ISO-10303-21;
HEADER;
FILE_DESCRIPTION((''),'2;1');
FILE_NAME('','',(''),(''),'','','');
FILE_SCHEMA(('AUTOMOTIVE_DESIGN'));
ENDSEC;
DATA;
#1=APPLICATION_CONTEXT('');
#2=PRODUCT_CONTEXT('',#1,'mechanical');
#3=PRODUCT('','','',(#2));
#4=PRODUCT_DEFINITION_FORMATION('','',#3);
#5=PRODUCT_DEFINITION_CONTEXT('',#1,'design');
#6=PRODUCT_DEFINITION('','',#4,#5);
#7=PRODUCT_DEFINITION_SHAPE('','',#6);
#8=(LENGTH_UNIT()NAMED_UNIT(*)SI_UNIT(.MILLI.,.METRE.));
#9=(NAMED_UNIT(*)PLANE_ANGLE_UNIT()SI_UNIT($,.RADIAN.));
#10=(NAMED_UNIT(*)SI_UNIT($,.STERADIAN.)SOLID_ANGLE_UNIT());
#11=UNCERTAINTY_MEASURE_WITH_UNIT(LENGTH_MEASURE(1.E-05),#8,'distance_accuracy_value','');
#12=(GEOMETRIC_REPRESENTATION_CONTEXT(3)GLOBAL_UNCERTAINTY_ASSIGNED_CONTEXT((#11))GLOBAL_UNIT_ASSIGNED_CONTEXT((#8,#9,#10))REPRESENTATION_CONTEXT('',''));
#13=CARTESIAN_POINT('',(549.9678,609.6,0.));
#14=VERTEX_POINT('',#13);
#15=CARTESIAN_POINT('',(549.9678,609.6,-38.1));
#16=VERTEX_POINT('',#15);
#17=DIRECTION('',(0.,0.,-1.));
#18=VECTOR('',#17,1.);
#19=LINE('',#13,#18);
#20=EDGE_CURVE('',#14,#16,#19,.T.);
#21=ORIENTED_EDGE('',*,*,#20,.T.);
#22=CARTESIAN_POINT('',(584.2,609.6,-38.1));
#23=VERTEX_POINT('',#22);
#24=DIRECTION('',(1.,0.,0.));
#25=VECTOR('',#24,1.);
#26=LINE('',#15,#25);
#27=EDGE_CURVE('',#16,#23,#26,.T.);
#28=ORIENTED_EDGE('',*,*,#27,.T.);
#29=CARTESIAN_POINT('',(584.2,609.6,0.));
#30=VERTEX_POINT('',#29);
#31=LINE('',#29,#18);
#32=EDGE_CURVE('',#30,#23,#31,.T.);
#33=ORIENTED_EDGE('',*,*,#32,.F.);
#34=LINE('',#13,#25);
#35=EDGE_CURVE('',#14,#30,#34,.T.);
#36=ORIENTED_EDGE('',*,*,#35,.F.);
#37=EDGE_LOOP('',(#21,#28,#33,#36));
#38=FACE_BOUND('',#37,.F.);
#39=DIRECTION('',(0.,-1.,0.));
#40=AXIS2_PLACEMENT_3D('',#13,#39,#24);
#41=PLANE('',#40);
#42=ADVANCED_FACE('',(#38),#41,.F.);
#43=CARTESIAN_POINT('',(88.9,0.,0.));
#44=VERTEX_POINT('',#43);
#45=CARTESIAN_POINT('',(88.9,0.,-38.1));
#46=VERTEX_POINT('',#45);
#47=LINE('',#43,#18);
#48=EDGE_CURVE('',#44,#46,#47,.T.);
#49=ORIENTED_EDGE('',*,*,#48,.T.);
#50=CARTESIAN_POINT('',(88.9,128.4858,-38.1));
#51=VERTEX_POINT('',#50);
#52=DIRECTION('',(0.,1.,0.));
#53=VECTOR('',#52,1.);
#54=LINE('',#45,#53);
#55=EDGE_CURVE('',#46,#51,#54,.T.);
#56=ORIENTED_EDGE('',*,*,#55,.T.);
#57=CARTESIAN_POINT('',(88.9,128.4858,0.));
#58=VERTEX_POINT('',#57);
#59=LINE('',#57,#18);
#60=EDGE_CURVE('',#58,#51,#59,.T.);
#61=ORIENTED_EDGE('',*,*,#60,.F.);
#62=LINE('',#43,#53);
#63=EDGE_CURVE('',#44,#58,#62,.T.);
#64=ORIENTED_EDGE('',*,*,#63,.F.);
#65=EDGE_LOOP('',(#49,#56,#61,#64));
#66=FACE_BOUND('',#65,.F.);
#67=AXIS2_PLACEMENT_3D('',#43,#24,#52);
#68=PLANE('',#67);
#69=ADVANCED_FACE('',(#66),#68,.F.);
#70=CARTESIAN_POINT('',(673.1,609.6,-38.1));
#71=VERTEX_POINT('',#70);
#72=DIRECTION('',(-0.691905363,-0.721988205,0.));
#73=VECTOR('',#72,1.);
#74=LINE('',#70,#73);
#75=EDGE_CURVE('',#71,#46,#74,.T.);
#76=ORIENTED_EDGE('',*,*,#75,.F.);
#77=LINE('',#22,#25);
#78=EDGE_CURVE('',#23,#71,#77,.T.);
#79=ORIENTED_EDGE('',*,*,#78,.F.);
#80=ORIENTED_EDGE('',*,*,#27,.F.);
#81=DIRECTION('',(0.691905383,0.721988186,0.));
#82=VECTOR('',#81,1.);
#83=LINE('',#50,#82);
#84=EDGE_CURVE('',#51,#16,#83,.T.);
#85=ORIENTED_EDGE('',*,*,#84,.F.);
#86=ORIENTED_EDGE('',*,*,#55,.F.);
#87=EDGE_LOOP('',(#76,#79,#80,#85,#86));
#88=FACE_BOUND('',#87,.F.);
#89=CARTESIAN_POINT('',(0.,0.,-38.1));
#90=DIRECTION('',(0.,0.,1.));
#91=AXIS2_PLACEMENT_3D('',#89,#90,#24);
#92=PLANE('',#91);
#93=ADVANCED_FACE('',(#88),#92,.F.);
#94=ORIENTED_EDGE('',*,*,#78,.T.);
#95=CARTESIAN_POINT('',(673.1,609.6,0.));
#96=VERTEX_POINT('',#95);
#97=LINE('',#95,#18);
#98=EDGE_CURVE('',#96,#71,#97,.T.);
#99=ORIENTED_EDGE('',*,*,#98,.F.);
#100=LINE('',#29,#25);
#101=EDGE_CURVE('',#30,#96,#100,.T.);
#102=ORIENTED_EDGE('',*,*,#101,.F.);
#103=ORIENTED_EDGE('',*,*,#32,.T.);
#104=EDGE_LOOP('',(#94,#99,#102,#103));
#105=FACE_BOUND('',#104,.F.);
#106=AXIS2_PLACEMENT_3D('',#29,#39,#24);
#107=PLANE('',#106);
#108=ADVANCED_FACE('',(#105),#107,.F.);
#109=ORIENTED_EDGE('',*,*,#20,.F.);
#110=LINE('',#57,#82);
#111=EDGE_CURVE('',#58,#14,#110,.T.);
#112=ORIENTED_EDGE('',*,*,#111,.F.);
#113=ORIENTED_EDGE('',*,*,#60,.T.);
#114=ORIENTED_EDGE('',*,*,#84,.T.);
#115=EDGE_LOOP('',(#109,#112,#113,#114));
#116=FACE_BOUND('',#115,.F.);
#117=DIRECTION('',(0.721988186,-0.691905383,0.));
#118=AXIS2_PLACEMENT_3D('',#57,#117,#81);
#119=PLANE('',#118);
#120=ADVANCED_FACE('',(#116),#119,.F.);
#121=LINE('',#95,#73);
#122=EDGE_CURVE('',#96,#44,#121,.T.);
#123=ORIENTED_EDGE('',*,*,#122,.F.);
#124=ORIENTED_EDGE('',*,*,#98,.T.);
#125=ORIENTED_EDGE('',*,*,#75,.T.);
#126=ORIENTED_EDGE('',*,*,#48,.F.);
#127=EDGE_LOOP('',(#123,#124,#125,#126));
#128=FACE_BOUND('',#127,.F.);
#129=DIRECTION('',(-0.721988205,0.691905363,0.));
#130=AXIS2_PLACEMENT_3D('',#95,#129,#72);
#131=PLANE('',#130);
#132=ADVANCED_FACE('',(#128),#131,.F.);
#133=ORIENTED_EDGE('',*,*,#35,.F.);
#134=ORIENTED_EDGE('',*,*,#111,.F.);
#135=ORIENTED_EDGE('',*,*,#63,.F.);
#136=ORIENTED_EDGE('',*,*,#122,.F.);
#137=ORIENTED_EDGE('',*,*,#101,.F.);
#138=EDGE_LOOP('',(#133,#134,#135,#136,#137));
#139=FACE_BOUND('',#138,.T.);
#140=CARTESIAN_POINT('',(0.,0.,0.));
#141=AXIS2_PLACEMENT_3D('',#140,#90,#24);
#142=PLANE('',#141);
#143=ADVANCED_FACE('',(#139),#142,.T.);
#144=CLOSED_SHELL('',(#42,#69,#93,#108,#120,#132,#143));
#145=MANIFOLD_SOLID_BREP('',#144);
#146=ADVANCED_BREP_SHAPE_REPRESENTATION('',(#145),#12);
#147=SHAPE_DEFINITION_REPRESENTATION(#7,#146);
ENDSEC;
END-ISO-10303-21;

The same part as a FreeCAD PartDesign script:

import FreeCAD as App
import Part
import Sketcher
Q = App.Units.Quantity


def add_polygon(sketch, points):
    """Adds a closed chain of lines whose ends are joined by coincident constraints."""
    first, n = sketch.GeometryCount, len(points)
    for a, b in zip(points, points[1:] + points[:1]):
        sketch.addGeometry(Part.LineSegment(App.Vector(*a, 0), App.Vector(*b, 0)), False)
    for i in range(n):
        sketch.addConstraint(Sketcher.Constraint("Coincident", first + i, 2, first + (i + 1) % n, 1))

doc = App.newDocument("Part")
params = doc.addObject("Spreadsheet::Sheet", "Params")
for row, (alias, value) in enumerate([
    ("pad1_length", "1.5 in"),
], start=1):
    params.set(f"A{row}", alias)
    params.set(f"B{row}", "=" + value)
    params.setAlias(f"B{row}", alias)

body = doc.addObject("PartDesign::Body", "Body")

# Sketch on XY plane
sketch1 = body.newObject("Sketcher::SketchObject", "Sketch")
sketch1.AttachmentSupport = (doc.getObject("XY_Plane"), [""])
sketch1.MapMode = "FlatFace"
add_polygon(sketch1, [(673, 610), (550, 610), (89, 128), (89, 0)])  # lines 0-3
sketch1.addConstraint([
    Sketcher.Constraint("Horizontal", 0),
    Sketcher.Constraint("Vertical", 2),
    Sketcher.Constraint("PointOnObject", 2, 2, -1),
    Sketcher.Constraint("Parallel", 1, 3),
    Sketcher.Constraint("DistanceY", -1, 1, 0, 2, Q("24 in")),
    Sketcher.Constraint("DistanceX", 1, 2, 3, 2, Q("23 in")),
    Sketcher.Constraint("DistanceX", -1, 1, 1, 2, Q("3.5 in")),
    Sketcher.Constraint("DistanceY", 2, 2, 2, 1, Q("5.0585 in")),
])
pad1 = body.newObject("PartDesign::Pad", "Pad")
pad1.Profile = sketch1
pad1.setExpression("Length", "Params.pad1_length")
pad1.Reversed = True

doc.recompute()
